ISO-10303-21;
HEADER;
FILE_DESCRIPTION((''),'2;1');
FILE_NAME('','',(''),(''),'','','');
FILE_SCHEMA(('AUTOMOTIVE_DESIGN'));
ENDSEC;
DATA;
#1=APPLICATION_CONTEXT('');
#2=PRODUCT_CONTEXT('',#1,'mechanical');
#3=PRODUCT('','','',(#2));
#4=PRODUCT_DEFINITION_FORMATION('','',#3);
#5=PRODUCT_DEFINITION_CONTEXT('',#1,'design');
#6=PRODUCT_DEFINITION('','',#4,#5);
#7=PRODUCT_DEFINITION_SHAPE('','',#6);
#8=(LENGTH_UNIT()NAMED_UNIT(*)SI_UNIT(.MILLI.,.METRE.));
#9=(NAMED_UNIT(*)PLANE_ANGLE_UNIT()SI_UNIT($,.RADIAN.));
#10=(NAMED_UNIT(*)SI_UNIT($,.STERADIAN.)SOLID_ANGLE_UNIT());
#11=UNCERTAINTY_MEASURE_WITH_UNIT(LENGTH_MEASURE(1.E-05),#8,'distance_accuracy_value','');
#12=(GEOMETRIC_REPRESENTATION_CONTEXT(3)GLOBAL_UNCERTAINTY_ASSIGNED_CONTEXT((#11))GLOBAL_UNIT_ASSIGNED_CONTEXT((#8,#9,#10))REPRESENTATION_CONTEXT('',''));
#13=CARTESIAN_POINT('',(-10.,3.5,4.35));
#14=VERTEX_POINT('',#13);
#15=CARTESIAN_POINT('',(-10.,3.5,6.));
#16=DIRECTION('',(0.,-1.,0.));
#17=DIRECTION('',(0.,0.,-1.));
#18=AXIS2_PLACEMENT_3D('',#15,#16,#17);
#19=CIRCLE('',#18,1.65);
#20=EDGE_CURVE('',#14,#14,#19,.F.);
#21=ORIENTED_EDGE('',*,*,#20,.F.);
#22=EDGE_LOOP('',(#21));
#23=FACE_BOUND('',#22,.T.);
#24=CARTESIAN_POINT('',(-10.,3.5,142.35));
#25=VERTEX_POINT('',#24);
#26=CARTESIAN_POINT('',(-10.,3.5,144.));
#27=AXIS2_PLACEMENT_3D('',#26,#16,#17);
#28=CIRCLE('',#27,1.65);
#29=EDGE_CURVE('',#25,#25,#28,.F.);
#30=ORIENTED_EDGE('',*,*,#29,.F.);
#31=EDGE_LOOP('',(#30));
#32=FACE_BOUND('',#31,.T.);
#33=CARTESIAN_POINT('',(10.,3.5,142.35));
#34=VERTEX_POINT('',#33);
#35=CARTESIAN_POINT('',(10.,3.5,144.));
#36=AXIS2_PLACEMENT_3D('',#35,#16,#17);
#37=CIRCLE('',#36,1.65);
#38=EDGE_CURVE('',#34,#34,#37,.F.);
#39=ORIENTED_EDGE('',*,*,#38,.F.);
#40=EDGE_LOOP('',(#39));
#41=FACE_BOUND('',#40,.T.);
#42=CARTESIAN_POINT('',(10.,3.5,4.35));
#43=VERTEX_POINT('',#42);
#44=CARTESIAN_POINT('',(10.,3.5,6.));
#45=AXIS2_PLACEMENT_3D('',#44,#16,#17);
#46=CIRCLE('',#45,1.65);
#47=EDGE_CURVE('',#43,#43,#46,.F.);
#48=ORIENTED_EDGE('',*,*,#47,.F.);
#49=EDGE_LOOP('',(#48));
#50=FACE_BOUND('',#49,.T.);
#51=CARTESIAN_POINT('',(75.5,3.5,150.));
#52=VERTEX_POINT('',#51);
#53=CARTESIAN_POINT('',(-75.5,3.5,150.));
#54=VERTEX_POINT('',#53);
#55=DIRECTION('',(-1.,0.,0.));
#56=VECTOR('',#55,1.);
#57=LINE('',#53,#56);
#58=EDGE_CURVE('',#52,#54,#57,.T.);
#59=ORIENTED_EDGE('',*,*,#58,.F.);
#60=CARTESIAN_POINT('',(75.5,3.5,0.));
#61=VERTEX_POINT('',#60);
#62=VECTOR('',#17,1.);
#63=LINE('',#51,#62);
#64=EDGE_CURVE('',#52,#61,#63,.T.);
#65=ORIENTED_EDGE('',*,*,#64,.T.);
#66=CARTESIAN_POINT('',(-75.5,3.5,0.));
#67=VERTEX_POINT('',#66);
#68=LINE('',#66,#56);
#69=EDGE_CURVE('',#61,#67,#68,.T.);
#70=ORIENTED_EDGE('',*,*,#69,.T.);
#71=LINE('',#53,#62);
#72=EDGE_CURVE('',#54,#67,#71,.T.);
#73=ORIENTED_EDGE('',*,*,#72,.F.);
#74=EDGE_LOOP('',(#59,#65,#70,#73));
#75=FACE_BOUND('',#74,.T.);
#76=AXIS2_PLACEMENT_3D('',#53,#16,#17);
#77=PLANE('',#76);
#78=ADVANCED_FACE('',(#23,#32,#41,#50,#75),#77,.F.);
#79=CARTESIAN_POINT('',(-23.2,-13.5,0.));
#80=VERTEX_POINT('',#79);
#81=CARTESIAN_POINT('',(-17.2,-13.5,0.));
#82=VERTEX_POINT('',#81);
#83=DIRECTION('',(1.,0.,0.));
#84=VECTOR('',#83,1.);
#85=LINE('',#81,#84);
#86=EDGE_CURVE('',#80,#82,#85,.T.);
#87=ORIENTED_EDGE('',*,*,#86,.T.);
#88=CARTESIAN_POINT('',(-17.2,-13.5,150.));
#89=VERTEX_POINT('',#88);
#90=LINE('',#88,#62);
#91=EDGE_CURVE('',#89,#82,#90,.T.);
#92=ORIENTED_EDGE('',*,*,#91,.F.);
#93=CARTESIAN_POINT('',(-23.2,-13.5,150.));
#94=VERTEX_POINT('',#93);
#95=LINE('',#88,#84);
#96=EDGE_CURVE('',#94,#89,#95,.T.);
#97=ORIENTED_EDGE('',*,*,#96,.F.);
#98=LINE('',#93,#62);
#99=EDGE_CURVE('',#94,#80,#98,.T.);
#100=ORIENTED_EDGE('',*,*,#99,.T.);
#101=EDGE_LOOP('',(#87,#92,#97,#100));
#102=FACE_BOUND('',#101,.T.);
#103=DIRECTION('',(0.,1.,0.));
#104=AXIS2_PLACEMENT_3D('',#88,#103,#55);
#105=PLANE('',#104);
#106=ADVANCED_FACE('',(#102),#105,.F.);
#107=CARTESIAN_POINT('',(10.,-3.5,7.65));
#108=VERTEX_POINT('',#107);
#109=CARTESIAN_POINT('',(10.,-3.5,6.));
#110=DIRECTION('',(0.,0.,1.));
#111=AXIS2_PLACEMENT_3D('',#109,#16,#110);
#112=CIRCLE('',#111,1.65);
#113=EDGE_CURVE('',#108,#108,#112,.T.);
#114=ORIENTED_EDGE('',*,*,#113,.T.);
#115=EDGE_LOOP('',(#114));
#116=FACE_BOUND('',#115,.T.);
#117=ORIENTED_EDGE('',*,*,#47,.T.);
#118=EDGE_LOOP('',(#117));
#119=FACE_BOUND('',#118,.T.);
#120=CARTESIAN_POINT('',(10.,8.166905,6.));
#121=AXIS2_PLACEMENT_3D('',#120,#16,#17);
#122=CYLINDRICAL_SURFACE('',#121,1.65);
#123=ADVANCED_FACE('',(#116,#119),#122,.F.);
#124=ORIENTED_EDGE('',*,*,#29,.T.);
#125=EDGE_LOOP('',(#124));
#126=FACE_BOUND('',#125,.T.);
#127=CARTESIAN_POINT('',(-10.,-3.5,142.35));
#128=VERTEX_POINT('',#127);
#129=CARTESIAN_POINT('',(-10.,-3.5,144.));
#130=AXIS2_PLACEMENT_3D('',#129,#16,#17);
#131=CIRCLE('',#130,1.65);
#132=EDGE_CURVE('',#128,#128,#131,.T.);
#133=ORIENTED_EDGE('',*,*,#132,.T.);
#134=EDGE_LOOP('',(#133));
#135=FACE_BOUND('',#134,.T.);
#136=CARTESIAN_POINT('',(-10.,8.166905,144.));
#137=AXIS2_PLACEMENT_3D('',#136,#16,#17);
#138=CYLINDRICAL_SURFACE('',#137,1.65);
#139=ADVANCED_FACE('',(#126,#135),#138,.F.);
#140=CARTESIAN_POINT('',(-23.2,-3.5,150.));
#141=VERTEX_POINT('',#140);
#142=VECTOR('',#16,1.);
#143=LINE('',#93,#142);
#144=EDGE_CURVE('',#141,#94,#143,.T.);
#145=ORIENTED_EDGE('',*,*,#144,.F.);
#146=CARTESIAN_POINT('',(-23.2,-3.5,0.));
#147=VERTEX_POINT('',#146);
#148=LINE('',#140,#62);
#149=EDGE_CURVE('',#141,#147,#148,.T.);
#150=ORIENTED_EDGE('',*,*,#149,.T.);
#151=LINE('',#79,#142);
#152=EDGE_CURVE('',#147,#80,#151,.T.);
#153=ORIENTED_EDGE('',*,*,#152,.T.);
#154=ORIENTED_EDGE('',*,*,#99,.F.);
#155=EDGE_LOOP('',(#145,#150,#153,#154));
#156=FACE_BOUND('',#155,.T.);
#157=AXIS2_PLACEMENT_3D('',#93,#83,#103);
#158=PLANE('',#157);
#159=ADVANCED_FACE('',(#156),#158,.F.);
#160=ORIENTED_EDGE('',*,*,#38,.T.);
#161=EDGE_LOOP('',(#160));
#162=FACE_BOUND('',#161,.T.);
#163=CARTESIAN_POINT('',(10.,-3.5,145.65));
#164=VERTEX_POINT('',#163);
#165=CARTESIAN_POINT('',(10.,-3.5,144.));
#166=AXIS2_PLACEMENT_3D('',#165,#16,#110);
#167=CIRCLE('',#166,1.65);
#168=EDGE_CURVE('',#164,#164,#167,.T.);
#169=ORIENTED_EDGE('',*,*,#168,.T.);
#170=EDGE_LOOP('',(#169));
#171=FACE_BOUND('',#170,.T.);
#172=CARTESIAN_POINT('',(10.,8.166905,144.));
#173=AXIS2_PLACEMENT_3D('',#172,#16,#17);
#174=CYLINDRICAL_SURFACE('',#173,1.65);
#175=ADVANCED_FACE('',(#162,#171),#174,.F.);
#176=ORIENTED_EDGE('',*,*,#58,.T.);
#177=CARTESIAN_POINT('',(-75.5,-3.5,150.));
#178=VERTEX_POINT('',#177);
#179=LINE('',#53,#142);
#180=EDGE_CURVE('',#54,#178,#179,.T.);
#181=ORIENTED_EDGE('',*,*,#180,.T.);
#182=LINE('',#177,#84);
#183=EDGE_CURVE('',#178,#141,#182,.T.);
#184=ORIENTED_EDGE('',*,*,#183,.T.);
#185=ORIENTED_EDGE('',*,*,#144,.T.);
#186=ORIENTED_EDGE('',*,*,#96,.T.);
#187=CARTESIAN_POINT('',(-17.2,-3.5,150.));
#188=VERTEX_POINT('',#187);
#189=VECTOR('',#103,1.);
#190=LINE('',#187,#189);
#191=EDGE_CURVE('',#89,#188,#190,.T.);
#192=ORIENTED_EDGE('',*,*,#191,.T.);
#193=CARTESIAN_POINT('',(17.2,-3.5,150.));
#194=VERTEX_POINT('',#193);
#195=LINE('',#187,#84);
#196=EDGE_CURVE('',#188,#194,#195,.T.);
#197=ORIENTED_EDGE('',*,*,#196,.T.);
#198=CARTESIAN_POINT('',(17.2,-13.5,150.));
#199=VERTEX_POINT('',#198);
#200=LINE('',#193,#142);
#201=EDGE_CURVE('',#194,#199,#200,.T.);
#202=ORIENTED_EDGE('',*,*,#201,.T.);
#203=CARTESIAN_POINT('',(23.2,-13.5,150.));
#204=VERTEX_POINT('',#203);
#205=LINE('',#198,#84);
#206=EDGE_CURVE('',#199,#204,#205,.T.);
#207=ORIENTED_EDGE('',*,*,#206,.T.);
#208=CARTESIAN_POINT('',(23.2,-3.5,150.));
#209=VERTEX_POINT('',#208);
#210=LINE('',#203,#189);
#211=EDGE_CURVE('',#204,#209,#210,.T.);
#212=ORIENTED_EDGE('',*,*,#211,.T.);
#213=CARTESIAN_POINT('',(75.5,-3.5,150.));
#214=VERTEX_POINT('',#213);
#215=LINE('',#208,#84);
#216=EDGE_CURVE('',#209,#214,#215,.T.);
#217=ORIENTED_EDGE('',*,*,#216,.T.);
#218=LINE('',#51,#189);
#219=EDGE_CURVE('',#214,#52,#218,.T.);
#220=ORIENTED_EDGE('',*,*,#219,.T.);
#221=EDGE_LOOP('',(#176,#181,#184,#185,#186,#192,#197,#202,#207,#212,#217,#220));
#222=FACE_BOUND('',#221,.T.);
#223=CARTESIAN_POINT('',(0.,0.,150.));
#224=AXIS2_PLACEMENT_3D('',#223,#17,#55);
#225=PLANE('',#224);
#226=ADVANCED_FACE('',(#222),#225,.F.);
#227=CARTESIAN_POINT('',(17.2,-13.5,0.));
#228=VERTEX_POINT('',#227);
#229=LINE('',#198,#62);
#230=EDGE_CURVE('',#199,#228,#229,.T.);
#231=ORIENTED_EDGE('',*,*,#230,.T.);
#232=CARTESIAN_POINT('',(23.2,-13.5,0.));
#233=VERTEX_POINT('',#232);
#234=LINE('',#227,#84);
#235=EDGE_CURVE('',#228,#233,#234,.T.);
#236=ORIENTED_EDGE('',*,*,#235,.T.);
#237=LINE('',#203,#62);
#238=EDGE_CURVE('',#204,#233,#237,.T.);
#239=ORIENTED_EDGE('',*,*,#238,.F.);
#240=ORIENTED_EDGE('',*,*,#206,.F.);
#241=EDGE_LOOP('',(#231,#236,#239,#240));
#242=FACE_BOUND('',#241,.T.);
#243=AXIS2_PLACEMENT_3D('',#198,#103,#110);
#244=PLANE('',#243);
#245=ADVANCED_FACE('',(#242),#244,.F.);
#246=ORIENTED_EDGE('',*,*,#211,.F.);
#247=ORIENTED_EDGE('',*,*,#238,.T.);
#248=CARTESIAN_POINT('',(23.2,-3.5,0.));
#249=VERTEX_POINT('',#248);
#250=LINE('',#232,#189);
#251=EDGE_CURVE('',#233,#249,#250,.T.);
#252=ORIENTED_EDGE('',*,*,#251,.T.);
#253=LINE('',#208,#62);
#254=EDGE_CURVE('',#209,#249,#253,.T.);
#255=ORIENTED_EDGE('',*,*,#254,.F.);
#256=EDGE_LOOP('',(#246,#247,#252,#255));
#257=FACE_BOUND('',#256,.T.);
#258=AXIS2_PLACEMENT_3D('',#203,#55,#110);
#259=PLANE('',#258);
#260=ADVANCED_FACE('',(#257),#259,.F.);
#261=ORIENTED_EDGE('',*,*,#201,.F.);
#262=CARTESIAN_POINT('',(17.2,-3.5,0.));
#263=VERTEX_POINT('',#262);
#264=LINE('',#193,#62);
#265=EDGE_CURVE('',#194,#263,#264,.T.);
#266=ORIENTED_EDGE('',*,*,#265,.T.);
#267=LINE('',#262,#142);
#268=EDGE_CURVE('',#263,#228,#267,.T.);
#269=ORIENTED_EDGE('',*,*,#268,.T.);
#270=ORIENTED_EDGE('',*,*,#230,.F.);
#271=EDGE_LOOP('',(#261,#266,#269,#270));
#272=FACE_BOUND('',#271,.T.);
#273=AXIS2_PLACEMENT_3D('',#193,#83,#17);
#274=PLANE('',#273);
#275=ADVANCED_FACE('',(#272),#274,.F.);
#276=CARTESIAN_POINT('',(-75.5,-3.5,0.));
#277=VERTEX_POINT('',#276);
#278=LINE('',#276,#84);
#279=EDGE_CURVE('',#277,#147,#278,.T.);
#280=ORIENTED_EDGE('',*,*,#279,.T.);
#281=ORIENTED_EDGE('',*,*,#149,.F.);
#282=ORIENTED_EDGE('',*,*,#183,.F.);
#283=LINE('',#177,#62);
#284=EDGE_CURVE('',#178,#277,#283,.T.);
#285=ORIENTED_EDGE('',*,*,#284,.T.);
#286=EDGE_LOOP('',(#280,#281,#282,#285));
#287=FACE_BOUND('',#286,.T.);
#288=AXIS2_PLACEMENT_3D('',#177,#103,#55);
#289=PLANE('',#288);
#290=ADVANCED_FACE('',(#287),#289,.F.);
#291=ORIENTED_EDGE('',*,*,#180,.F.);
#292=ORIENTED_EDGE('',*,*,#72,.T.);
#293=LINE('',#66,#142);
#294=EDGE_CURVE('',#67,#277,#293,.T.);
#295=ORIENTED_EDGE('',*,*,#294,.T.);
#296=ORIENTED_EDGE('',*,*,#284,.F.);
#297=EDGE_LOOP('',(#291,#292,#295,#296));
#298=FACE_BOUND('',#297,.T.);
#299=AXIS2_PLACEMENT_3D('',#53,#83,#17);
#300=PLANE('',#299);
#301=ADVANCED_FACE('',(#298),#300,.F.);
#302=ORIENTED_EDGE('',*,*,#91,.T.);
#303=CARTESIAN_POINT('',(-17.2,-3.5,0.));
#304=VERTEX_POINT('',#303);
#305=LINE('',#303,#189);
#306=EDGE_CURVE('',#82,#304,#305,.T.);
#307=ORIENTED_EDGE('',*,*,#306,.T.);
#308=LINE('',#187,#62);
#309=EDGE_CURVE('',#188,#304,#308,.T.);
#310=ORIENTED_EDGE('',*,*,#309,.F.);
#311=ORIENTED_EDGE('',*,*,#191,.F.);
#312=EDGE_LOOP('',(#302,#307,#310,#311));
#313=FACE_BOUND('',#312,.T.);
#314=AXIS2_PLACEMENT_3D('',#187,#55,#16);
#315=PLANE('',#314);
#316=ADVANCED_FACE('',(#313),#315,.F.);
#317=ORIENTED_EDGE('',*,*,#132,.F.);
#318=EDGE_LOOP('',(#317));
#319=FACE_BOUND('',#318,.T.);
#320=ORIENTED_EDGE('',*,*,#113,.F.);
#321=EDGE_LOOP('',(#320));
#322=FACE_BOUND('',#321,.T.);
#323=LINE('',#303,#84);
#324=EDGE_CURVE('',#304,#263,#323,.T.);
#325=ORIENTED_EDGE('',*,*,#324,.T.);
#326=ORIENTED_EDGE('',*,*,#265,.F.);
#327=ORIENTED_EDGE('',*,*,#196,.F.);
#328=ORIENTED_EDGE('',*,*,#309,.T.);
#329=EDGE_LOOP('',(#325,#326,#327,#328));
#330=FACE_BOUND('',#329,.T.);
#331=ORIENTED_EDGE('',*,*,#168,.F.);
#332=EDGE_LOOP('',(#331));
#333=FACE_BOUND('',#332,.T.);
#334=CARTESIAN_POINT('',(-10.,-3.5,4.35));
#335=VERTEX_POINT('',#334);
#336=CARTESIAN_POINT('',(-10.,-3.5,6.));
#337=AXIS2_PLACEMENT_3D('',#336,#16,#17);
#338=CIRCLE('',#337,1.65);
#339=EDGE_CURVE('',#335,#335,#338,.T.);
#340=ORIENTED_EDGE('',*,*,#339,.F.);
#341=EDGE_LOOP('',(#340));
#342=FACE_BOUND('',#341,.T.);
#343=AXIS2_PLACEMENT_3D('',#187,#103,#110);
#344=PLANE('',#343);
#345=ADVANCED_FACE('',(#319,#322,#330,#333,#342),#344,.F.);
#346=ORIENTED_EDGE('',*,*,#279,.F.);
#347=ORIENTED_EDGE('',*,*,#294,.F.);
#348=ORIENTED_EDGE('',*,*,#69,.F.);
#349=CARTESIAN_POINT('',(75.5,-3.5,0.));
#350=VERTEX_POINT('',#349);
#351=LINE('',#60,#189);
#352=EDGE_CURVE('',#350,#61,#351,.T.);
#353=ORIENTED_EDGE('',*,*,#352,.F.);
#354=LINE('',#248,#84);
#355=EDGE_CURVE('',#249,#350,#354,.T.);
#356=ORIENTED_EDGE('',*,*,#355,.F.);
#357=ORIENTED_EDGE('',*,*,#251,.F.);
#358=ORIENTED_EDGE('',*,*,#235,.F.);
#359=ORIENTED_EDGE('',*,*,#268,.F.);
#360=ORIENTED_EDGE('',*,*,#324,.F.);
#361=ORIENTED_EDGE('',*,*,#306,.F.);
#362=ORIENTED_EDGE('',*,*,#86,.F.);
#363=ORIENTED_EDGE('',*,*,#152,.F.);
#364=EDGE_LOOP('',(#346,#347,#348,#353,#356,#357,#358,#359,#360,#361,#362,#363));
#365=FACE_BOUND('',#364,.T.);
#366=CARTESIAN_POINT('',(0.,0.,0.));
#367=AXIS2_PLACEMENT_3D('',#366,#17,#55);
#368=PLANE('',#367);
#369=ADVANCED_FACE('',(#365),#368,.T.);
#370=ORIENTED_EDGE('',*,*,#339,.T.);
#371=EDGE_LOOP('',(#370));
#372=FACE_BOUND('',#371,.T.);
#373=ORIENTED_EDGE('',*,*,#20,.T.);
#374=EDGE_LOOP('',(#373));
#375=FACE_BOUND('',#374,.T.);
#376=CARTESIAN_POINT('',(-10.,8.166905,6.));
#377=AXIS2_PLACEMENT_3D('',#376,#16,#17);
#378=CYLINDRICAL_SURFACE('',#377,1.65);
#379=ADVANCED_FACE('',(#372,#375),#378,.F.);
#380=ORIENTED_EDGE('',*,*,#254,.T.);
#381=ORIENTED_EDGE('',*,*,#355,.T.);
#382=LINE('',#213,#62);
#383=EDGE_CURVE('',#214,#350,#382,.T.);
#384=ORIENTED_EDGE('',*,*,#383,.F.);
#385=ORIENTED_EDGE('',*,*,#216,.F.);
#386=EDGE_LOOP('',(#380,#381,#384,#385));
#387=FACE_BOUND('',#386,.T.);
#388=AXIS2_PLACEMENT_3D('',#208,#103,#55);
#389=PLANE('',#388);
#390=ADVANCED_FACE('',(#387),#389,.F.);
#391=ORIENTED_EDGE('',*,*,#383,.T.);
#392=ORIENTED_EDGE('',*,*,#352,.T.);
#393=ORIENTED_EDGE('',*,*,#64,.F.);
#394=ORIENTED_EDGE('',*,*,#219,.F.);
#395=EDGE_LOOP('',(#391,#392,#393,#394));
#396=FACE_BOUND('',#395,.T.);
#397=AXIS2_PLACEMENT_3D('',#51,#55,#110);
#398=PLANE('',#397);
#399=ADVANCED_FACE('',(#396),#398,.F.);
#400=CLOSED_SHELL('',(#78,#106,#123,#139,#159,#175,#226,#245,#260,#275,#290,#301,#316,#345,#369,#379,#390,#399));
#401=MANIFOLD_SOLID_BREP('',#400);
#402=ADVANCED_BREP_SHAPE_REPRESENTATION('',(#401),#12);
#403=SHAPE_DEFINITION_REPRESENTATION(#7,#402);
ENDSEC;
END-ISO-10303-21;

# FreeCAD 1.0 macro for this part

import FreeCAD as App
import Part
import Sketcher
from FreeCAD import Vector
Q = App.Units.Quantity


def add_polygon(sketch, points):
    """Adds a closed chain of lines whose ends are joined by coincident constraints."""
    first, n = sketch.GeometryCount, len(points)
    for a, b in zip(points, points[1:] + points[:1]):
        sketch.addGeometry(Part.LineSegment(App.Vector(*a, 0), App.Vector(*b, 0)), False)
    for i in range(n):
        sketch.addConstraint(Sketcher.Constraint("Coincident", first + i, 2, first + (i + 1) % n, 1))

doc = App.newDocument("Part")
params = doc.addObject("Spreadsheet::Sheet", "Params")
for row, (alias, value) in enumerate([
    ("sketch1_width", "151 mm"),
    ("sketch1_width2", "6 mm"),
    ("sketch1_height", "7 mm"),
    ("sketch1_height2", "10 mm"),
    ("sketch1_width3", "52.3 mm"),
    ("pad1_length", "150 mm"),
    ("sketch2_diameter", "3.3 mm"),
    ("pocket1_length", "7 mm"),
], start=1):
    params.set(f"A{row}", alias)
    params.set(f"B{row}", "=" + value)
    params.setAlias(f"B{row}", alias)

body = doc.addObject("PartDesign::Body", "Body")

sketch1 = doc.addObject("Sketcher::SketchObject", "Sketch")
body.addObject(sketch1)
sketch1.AttachmentSupport = (doc.XY_Plane, [""])
sketch1.MapMode = "FlatFace"
add_polygon(sketch1, [(75.5, 3.5), (-75.5, 3.5), (-75.5, -3.5), (-23.2, -3.5), (-23.2, -13.5), (-17.2, -13.5), (-17.2, -3.5), (17.2, -3.5), (17.2, -13.5), (23.2, -13.5), (23.2, -3.5), (75.5, -3.5)])
sketch1.addConstraint(Sketcher.Constraint("Horizontal", 0))
sketch1.addConstraint(Sketcher.Constraint("Vertical", 1))
sketch1.addConstraint(Sketcher.Constraint("Horizontal", 2))
sketch1.addConstraint(Sketcher.Constraint("Vertical", 3))
sketch1.addConstraint(Sketcher.Constraint("Horizontal", 4))
sketch1.addConstraint(Sketcher.Constraint("Vertical", 5))
sketch1.addConstraint(Sketcher.Constraint("Horizontal", 6))
sketch1.addConstraint(Sketcher.Constraint("Vertical", 7))
sketch1.addConstraint(Sketcher.Constraint("Horizontal", 8))
sketch1.addConstraint(Sketcher.Constraint("Vertical", 9))
sketch1.addConstraint(Sketcher.Constraint("Horizontal", 10))
sketch1.addConstraint(Sketcher.Constraint("Vertical", 11))
sketch1.addConstraint(Sketcher.Constraint("Symmetric", 0, 2, 10, 2, -1, 1))
sketch1.addConstraint(Sketcher.Constraint("Symmetric", 4, 2, 7, 2, -2))
sketch1.addConstraint(Sketcher.Constraint("Symmetric", 2, 2, 9, 2, -2))
sketch1.addConstraint(Sketcher.Constraint("Horizontal", 2, 2, 5, 2))
sketch1.addConstraint(Sketcher.Constraint("DistanceX", 0, 2, 0, 1, Q("151 mm")))
sketch1.addConstraint(Sketcher.Constraint("DistanceX", 4, 1, 4, 2, Q("6 mm")))
sketch1.addConstraint(Sketcher.Constraint("DistanceY", 1, 2, 1, 1, Q("7 mm")))
sketch1.addConstraint(Sketcher.Constraint("DistanceY", 3, 2, 3, 1, Q("10 mm")))
sketch1.addConstraint(Sketcher.Constraint("DistanceX", 2, 1, 2, 2, Q("52.3 mm")))
sketch1.setExpression("Constraints[28]", "Params.sketch1_width")
sketch1.setExpression("Constraints[29]", "Params.sketch1_width2")
sketch1.setExpression("Constraints[30]", "Params.sketch1_height")
sketch1.setExpression("Constraints[31]", "Params.sketch1_height2")
sketch1.setExpression("Constraints[32]", "Params.sketch1_width3")
pad1 = doc.addObject("PartDesign::Pad", "Pad")
body.addObject(pad1)
pad1.Profile = sketch1
pad1.setExpression("Length", "Params.pad1_length")

sketch2 = doc.addObject("Sketcher::SketchObject", "Sketch001")
body.addObject(sketch2)
sketch2.AttachmentSupport = (doc.XZ_Plane, [""])
sketch2.MapMode = "FlatFace"
sketch2.AttachmentOffset = App.Placement(Vector(0, 0, 3.5), App.Rotation())
sketch2.addGeometry(Part.Circle(Vector(-10, 6, 0), Vector(0, 0, 1), 1.65), False)
sketch2.addGeometry(Part.Circle(Vector(10, 6, 0), Vector(0, 0, 1), 1.65), False)
sketch2.addGeometry(Part.Circle(Vector(-10, 144, 0), Vector(0, 0, 1), 1.65), False)
sketch2.addGeometry(Part.Circle(Vector(10, 144, 0), Vector(0, 0, 1), 1.65), False)
sketch2.addConstraint(Sketcher.Constraint("Equal", 0, 1))
sketch2.addConstraint(Sketcher.Constraint("Equal", 1, 2))
sketch2.addConstraint(Sketcher.Constraint("Equal", 2, 3))
sketch2.addConstraint(Sketcher.Constraint("Symmetric", 0, 3, 1, 3, -2))
sketch2.addConstraint(Sketcher.Constraint("Symmetric", 2, 3, 3, 3, -2))
sketch2.addConstraint(Sketcher.Constraint("Vertical", 0, 3, 2, 3))
sketch2.addConstraint(Sketcher.Constraint("Diameter", 0, Q("3.3 mm")))
sketch2.addConstraint(Sketcher.Constraint("DistanceX", 0, 3, -1, 1, Q("10 mm")))
sketch2.addConstraint(Sketcher.Constraint("DistanceY", -1, 1, 0, 3, Q("6 mm")))
sketch2.addConstraint(Sketcher.Constraint("DistanceY", -1, 1, 2, 3, Q("144 mm")))
sketch2.setExpression("Constraints[6]", "Params.sketch2_diameter")
pocket1 = doc.addObject("PartDesign::Pocket", "Pocket")
body.addObject(pocket1)
pocket1.Profile = sketch2
pocket1.setExpression("Length", "Params.pocket1_length")

doc.recompute()
